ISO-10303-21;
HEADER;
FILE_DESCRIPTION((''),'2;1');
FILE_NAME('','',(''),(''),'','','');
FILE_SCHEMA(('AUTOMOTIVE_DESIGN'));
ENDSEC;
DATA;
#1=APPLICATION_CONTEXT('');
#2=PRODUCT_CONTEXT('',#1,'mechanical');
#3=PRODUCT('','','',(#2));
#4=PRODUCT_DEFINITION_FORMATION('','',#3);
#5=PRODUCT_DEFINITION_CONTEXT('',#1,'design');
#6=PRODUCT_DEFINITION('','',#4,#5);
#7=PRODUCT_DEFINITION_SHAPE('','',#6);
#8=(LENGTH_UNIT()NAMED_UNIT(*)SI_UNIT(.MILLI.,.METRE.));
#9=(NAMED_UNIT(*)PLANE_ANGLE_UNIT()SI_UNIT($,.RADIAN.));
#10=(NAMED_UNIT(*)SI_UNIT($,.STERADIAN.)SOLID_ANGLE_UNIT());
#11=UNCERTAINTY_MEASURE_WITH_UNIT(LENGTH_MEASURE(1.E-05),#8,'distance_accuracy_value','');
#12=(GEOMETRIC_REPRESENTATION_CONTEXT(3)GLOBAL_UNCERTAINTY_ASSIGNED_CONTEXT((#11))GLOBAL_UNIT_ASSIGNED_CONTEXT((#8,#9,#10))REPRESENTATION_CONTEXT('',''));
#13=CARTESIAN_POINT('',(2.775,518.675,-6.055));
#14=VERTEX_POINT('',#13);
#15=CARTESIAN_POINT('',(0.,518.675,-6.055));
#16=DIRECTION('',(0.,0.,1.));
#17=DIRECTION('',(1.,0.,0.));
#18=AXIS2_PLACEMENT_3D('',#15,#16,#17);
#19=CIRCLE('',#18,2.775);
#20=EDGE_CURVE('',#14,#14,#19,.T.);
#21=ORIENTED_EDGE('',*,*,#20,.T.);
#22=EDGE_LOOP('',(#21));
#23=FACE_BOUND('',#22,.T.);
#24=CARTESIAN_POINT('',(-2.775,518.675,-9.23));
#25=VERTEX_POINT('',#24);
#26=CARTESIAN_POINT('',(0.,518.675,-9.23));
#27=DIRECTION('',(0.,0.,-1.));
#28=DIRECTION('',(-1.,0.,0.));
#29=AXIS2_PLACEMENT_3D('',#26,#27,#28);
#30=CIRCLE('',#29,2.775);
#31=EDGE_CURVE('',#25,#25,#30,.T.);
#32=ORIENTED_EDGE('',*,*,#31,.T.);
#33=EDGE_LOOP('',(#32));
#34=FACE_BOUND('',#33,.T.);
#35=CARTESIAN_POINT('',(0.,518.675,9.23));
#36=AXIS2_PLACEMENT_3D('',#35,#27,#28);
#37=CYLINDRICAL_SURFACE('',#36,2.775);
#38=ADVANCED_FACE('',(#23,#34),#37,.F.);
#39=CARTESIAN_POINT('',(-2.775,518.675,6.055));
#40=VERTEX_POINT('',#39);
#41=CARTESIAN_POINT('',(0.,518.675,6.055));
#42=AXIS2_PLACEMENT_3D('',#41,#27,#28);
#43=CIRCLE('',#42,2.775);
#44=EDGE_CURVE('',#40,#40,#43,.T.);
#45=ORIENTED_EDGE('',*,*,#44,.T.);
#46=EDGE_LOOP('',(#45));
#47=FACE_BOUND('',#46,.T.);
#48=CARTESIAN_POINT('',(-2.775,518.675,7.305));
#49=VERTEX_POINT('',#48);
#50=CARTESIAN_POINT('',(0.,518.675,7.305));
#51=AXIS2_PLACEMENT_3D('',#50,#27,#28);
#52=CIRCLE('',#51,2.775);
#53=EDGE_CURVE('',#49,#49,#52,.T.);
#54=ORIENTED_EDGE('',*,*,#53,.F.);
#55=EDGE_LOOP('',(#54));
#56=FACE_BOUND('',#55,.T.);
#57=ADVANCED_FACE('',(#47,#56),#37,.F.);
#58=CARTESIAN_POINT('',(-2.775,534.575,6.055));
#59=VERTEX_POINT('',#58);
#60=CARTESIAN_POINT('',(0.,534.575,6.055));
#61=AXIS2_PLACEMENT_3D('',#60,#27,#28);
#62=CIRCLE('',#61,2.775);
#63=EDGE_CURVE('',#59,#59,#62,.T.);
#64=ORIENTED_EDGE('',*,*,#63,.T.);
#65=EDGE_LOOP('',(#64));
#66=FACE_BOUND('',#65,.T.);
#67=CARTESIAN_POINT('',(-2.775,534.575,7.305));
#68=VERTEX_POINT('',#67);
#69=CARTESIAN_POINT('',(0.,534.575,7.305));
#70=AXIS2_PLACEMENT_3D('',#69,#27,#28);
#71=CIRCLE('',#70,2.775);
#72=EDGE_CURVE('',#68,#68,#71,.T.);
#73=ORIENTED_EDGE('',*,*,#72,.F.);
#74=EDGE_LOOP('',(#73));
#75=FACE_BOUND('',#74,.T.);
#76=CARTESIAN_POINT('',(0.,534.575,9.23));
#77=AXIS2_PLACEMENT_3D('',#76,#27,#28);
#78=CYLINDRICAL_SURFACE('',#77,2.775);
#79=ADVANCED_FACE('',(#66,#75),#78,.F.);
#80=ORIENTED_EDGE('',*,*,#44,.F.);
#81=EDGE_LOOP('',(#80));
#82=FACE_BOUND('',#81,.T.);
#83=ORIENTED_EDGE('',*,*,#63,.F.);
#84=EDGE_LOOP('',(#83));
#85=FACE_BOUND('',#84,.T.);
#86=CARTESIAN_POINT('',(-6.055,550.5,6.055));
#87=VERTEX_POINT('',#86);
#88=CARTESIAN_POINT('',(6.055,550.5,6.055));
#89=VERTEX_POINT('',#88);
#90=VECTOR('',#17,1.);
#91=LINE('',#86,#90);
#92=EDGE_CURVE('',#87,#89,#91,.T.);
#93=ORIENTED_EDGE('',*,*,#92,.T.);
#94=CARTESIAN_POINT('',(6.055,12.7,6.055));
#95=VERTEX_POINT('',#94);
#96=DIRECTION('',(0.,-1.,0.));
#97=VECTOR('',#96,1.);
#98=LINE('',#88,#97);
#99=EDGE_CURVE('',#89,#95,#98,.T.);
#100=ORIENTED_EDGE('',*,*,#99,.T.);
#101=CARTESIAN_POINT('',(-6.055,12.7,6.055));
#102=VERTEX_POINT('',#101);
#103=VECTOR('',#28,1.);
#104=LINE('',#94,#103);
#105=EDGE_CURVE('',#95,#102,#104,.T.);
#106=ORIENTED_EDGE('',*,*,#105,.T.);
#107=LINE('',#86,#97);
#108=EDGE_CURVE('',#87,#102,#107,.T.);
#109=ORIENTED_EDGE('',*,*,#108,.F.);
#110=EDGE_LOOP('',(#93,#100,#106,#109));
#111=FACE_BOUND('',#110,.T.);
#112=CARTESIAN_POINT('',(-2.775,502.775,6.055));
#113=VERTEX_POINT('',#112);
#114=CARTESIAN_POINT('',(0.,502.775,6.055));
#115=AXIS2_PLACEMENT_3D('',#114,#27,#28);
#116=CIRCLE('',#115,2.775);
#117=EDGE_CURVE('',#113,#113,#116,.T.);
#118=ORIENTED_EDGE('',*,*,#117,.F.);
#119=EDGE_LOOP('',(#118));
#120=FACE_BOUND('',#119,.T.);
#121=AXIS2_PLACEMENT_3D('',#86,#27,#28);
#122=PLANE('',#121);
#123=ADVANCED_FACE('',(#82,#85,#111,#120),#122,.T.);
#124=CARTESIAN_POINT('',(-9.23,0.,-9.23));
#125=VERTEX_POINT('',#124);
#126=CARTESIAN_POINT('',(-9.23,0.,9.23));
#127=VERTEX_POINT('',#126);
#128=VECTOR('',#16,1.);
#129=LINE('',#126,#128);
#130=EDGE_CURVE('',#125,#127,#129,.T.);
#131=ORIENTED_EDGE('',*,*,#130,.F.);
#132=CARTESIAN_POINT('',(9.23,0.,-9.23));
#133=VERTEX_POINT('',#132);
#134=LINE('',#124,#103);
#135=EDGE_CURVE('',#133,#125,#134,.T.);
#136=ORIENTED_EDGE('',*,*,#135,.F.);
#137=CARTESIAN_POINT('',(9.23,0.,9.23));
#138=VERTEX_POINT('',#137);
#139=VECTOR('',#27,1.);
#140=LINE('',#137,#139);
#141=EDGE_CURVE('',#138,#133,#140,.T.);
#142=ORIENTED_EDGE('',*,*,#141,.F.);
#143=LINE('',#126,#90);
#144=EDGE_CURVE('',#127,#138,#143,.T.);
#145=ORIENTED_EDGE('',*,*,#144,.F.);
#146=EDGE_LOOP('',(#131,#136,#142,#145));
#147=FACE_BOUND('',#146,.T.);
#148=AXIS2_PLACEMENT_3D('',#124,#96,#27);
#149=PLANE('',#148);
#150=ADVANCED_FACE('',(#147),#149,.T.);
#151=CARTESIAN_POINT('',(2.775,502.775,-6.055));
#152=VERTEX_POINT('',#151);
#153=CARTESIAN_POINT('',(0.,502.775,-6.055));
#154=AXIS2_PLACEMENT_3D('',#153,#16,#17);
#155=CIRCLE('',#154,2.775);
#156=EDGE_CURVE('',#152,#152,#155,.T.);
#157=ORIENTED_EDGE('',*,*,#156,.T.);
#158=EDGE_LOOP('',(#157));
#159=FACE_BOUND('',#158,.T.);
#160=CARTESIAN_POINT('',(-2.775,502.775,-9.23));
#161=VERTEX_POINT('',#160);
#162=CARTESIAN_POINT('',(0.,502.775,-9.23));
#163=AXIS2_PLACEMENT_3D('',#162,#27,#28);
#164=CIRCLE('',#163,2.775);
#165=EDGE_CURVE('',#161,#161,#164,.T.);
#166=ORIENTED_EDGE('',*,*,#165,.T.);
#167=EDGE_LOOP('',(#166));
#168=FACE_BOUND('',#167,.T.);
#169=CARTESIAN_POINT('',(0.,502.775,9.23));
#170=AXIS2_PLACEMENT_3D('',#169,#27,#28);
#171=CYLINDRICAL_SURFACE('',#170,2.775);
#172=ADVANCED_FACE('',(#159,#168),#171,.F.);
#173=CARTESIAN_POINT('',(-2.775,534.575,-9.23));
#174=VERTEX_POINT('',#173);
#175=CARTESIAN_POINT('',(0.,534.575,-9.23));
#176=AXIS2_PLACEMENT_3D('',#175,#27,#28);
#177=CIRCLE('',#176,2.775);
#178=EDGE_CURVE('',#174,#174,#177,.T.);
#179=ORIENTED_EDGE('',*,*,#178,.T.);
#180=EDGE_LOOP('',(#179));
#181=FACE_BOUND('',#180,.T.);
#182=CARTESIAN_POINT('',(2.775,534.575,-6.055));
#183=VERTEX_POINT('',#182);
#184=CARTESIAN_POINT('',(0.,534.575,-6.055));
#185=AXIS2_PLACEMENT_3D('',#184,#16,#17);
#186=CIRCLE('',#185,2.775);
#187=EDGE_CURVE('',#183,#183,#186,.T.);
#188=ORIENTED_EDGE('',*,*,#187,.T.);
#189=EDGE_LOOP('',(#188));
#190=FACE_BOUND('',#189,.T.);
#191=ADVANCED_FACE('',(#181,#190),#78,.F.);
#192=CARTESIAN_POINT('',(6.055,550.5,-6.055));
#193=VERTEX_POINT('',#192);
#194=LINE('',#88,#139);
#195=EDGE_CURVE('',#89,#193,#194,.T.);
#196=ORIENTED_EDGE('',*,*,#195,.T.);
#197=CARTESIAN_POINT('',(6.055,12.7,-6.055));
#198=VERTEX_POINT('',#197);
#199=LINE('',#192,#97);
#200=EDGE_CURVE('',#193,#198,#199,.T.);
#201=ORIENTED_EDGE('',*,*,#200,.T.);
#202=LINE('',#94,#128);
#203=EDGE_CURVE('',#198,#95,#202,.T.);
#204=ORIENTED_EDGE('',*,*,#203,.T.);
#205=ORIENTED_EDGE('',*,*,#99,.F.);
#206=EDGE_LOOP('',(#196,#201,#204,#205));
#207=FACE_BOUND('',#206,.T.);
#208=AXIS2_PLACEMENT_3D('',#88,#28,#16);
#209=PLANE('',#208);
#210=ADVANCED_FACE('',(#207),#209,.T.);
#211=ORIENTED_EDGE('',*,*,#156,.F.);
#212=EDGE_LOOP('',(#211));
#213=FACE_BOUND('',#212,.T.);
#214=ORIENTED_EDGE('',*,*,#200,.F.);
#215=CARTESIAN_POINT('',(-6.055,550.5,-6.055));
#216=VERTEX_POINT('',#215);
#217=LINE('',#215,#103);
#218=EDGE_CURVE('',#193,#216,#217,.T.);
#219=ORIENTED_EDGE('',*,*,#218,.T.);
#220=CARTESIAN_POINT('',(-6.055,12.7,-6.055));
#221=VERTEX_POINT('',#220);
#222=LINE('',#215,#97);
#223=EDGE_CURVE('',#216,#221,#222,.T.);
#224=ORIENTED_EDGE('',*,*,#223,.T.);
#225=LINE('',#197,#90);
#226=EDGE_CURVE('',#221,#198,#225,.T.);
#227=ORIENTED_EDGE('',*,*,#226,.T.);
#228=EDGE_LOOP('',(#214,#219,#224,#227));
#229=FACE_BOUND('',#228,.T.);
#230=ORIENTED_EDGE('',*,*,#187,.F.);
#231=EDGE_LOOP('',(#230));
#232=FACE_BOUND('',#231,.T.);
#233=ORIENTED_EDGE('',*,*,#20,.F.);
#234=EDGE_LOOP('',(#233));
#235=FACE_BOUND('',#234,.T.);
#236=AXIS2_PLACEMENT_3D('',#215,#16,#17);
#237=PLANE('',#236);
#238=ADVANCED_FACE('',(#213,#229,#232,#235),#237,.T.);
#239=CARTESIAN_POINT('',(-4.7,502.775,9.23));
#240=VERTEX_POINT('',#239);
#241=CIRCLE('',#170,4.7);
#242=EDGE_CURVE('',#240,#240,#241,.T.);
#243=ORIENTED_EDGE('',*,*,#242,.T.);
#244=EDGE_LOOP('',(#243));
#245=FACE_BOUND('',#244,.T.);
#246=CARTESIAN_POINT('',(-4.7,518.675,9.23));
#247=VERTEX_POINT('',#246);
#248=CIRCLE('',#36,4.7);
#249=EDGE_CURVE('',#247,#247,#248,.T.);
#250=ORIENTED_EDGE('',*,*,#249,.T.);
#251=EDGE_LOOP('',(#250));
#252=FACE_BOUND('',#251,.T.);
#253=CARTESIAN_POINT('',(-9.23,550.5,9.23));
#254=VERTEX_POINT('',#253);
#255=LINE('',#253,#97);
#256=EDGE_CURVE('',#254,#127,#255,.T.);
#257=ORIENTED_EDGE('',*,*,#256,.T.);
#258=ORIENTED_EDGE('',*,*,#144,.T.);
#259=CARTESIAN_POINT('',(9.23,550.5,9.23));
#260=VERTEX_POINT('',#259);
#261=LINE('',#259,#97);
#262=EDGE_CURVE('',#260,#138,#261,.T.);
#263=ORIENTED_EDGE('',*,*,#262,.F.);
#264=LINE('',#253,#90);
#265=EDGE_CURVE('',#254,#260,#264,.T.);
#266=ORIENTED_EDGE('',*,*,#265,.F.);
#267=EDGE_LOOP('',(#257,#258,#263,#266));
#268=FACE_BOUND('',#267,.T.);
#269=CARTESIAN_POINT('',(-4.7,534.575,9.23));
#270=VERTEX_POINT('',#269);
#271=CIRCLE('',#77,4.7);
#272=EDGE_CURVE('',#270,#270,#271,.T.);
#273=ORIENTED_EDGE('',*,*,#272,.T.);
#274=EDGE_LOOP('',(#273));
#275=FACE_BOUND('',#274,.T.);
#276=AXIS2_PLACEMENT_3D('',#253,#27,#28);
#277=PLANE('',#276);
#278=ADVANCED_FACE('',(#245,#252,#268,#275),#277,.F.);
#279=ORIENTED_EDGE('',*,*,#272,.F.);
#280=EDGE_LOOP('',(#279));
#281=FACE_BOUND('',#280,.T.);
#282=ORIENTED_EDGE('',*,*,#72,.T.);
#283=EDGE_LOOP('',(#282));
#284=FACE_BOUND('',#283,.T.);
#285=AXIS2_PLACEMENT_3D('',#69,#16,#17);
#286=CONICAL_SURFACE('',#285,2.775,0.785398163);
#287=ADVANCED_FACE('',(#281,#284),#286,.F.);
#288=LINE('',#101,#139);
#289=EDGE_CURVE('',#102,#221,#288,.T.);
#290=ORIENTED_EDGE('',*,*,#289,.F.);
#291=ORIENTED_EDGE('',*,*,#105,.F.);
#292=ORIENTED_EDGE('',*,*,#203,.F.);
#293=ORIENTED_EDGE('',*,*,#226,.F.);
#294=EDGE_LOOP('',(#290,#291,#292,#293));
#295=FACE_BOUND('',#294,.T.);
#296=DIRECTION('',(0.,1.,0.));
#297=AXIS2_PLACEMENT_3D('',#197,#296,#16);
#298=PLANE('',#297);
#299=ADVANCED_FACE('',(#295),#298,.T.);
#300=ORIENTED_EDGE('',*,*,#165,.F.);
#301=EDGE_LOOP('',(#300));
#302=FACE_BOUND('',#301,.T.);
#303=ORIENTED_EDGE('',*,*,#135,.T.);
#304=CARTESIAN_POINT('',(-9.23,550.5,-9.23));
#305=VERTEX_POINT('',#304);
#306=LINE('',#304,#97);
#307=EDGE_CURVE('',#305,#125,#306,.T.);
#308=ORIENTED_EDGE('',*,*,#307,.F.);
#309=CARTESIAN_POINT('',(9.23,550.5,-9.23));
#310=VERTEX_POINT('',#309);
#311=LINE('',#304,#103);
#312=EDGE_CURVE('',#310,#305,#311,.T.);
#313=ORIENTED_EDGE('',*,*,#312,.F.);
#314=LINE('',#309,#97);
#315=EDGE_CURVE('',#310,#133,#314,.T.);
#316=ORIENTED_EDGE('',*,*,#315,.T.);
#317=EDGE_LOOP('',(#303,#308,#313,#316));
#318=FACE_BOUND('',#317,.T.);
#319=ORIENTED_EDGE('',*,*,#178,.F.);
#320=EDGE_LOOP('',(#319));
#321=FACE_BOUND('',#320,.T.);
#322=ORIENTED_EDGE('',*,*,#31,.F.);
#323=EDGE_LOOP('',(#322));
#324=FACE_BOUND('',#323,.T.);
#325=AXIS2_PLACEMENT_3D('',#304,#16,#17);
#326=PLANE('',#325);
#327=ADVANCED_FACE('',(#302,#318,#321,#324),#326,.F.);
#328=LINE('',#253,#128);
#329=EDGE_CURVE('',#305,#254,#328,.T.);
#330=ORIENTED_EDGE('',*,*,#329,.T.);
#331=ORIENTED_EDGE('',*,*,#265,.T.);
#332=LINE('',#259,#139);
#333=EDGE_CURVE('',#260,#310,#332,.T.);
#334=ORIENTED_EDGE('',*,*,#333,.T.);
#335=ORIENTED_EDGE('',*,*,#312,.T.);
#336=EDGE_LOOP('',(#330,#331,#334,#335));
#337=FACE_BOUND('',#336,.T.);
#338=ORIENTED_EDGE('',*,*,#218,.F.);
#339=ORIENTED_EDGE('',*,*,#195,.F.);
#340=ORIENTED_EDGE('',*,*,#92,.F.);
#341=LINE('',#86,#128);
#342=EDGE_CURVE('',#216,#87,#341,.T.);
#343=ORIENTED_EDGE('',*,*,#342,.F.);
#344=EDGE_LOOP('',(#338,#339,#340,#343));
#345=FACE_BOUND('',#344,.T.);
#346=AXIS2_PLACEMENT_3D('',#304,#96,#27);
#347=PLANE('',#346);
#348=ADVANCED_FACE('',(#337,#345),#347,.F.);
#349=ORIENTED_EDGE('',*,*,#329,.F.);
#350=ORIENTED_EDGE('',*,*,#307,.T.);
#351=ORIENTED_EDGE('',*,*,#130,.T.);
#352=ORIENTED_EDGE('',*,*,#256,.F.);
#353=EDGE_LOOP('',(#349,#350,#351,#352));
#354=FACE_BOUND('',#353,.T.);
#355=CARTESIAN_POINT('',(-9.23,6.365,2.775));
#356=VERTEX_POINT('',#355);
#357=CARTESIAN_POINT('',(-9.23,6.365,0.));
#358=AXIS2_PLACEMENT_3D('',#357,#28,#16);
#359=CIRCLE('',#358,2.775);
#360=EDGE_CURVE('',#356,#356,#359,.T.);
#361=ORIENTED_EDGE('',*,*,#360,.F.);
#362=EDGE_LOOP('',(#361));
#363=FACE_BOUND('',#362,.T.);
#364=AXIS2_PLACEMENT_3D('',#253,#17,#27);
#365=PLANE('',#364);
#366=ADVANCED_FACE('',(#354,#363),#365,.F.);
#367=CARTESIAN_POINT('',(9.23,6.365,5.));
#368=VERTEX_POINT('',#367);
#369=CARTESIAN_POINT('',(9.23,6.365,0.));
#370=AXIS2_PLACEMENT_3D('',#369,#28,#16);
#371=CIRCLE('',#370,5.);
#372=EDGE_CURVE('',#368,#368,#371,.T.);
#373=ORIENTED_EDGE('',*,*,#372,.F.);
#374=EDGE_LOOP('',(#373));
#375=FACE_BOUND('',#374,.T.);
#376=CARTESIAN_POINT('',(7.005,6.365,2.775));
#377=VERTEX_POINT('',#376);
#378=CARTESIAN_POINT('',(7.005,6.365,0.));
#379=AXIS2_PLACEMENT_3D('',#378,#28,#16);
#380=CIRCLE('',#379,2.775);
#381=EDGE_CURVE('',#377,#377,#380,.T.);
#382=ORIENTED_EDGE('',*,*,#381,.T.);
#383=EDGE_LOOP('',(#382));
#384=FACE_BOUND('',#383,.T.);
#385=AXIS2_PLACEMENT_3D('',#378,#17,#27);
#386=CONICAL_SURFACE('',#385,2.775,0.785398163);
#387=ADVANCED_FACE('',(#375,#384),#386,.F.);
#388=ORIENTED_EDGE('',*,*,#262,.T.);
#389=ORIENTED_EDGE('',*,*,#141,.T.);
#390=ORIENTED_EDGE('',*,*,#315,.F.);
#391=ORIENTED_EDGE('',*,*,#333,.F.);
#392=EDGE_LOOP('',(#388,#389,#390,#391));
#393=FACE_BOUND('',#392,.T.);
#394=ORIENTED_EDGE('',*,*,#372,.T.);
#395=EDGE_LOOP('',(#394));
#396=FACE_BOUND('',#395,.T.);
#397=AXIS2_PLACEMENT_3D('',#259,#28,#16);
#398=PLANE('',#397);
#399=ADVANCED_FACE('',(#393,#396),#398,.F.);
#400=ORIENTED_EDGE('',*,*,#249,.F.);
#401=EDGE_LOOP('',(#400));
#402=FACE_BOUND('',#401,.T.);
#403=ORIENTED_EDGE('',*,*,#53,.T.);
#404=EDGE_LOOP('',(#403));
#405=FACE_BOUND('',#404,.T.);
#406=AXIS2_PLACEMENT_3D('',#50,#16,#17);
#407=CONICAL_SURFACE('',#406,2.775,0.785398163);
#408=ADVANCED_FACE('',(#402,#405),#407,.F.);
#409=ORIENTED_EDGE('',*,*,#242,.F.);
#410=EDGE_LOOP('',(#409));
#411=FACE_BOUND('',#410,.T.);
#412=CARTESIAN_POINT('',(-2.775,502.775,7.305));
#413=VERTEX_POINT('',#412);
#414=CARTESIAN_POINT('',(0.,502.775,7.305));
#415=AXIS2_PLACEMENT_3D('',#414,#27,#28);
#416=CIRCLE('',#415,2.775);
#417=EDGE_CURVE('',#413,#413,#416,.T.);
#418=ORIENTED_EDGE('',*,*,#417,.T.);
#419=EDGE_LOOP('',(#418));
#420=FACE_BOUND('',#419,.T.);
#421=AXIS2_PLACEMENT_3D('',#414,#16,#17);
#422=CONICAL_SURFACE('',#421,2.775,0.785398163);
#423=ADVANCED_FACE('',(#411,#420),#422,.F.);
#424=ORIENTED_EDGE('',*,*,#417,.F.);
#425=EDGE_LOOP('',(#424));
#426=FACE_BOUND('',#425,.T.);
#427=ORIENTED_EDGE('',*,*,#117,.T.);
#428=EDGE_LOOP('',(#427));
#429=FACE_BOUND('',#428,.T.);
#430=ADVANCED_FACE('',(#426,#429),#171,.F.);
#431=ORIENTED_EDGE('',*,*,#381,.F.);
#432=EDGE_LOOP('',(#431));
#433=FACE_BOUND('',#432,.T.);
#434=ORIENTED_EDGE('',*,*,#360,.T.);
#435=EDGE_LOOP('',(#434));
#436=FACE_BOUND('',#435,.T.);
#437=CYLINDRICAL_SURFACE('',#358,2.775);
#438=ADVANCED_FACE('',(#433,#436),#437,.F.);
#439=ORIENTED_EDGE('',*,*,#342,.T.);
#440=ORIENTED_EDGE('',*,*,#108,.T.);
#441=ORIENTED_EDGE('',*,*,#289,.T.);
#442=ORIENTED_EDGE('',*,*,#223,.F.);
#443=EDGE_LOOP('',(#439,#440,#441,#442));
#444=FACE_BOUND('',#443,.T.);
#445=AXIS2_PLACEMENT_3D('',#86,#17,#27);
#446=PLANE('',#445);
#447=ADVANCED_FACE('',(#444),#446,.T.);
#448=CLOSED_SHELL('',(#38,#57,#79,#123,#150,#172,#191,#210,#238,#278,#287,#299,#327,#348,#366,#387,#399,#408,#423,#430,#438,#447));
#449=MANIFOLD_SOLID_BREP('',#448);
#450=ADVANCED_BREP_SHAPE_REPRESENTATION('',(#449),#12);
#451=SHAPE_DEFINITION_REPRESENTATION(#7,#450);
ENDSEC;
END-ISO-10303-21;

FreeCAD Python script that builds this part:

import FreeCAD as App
import Part
import Sketcher

V = App.Vector
Q = App.Units.Quantity


def add_polygon(sketch, points):
    """Adds a closed chain of lines whose ends are joined by coincident constraints."""
    first, n = sketch.GeometryCount, len(points)
    for a, b in zip(points, points[1:] + points[:1]):
        sketch.addGeometry(Part.LineSegment(App.Vector(*a, 0), App.Vector(*b, 0)), False)
    for i in range(n):
        sketch.addConstraint(Sketcher.Constraint("Coincident", first + i, 2, first + (i + 1) % n, 1))

doc = App.newDocument("Part")
body = doc.addObject("PartDesign::Body", "Body")

sketch1 = doc.addObject("Sketcher::SketchObject", "Sketch")
body.addObject(sketch1)
sketch1.AttachmentSupport = (doc.XZ_Plane, [""])
sketch1.MapMode = "FlatFace"
add_polygon(sketch1, [(-9, -9), (-9, 9), (9, 9), (9, -9)])
add_polygon(sketch1, [(6, 6), (-6, 6), (-6, -6), (6, -6)])
sketch1.addConstraint(Sketcher.Constraint("Vertical", 0))
sketch1.addConstraint(Sketcher.Constraint("Horizontal", 1))
sketch1.addConstraint(Sketcher.Constraint("Vertical", 2))
sketch1.addConstraint(Sketcher.Constraint("Horizontal", 3))
sketch1.addConstraint(Sketcher.Constraint("Horizontal", 4))
sketch1.addConstraint(Sketcher.Constraint("Vertical", 5))
sketch1.addConstraint(Sketcher.Constraint("Horizontal", 6))
sketch1.addConstraint(Sketcher.Constraint("Vertical", 7))
sketch1.addConstraint(Sketcher.Constraint("Symmetric", 0, 2, 2, 2, -1, 1))
sketch1.addConstraint(Sketcher.Constraint("Symmetric", 4, 2, 6, 2, -1, 1))
sketch1.addConstraint(Sketcher.Constraint("Equal", 3, 0))
sketch1.addConstraint(Sketcher.Constraint("Equal", 6, 5))
sketch1.addConstraint(Sketcher.Constraint("DistanceX", 1, 1, 1, 2, Q("18.46 mm")))
sketch1.addConstraint(Sketcher.Constraint("DistanceX", 4, 2, 4, 1, Q("12.11 mm")))
pad1 = doc.addObject("PartDesign::Pad", "Pad")
body.addObject(pad1)
pad1.Profile = sketch1
pad1.Length = 550.5
pad1.Reversed = True

sketch2 = doc.addObject("Sketcher::SketchObject", "Sketch001")
body.addObject(sketch2)
sketch2.AttachmentSupport = (doc.XZ_Plane, [""])
sketch2.MapMode = "FlatFace"
add_polygon(sketch2, [(-6, 6), (-6, -6), (6, -6), (6, 6)])
sketch2.addConstraint(Sketcher.Constraint("Vertical", 0))
sketch2.addConstraint(Sketcher.Constraint("Horizontal", 1))
sketch2.addConstraint(Sketcher.Constraint("Vertical", 2))
sketch2.addConstraint(Sketcher.Constraint("Horizontal", 3))
sketch2.addConstraint(Sketcher.Constraint("Symmetric", 0, 2, 2, 2, -1, 1))
sketch2.addConstraint(Sketcher.Constraint("Equal", 3, 0))
sketch2.addConstraint(Sketcher.Constraint("DistanceX", 1, 1, 1, 2, Q("12.11 mm")))
pad2 = doc.addObject("PartDesign::Pad", "Pad001")
body.addObject(pad2)
pad2.Profile = sketch2
pad2.Length = 12.7
pad2.Reversed = True

sketch3 = doc.addObject("Sketcher::SketchObject", "Sketch002")
body.addObject(sketch3)
sketch3.AttachmentSupport = (doc.XY_Plane, [""])
sketch3.MapMode = "FlatFace"
add_polygon(sketch3, [(9.2, 6.4), (-9.2, 6.4), (-9.2, 3.6), (7, 3.6), (9.2, 1.4)])
sketch3.addGeometry(Part.LineSegment(V(-9.2, 6.4, 0), V(9.2, 6.4, 0)), True)
sketch3.addConstraint(Sketcher.Constraint("Horizontal", 0))
sketch3.addConstraint(Sketcher.Constraint("Vertical", 1))
sketch3.addConstraint(Sketcher.Constraint("Horizontal", 2))
sketch3.addConstraint(Sketcher.Constraint("Vertical", 4))
sketch3.addConstraint(Sketcher.Constraint("Horizontal", 5))
sketch3.addConstraint(Sketcher.Constraint("Coincident", 5, 1, 0, 2))
sketch3.addConstraint(Sketcher.Constraint("Vertical", 3, 2, 5, 2))
sketch3.addConstraint(Sketcher.Constraint("DistanceY", 4, 1, 4, 2, Q("5 mm")))
sketch3.addConstraint(Sketcher.Constraint("Angle", 3, Q("-45 deg")))
sketch3.addConstraint(Sketcher.Constraint("DistanceX", 0, 2, 0, 1, Q("18.46 mm")))
sketch3.addConstraint(Sketcher.Constraint("DistanceX", 2, 1, 2, 2, Q("16.235 mm")))
sketch3.addConstraint(Sketcher.Constraint("DistanceX", 0, 2, -1, 1, Q("9.23 mm")))
sketch3.addConstraint(Sketcher.Constraint("DistanceY", -1, 1, 1, 2, Q("3.59 mm")))
groove = doc.addObject("PartDesign::Groove", "Groove")
body.addObject(groove)
groove.Profile = sketch3
groove.ReferenceAxis = (sketch3, ["Axis0"])
groove.Angle = 360

sketch4 = doc.addObject("Sketcher::SketchObject", "Sketch003")
body.addObject(sketch4)
sketch4.AttachmentSupport = (doc.YZ_Plane, [""])
sketch4.MapMode = "FlatFace"
add_polygon(sketch4, [(537.4, 7.3), (539.3, 9.2), (534.6, 9.2), (534.6, -9.2), (537.4, -9.2)])
sketch4.addGeometry(Part.LineSegment(V(534.6, -9.2, 0), V(534.6, 9.2, 0)), True)
sketch4.addConstraint(Sketcher.Constraint("Horizontal", 1))
sketch4.addConstraint(Sketcher.Constraint("Vertical", 2))
sketch4.addConstraint(Sketcher.Constraint("Horizontal", 3))
sketch4.addConstraint(Sketcher.Constraint("Vertical", 4))
sketch4.addConstraint(Sketcher.Constraint("Vertical", 5))
sketch4.addConstraint(Sketcher.Constraint("Coincident", 5, 1, 2, 2))
sketch4.addConstraint(Sketcher.Constraint("Horizontal", 0, 2, 5, 2))
sketch4.addConstraint(Sketcher.Constraint("Angle", 0, Q("45 deg")))
sketch4.addConstraint(Sketcher.Constraint("DistanceX", 1, 2, 1, 1, Q("4.7 mm")))
sketch4.addConstraint(Sketcher.Constraint("DistanceY", 2, 2, 2, 1, Q("18.46 mm")))
sketch4.addConstraint(Sketcher.Constraint("DistanceX", 3, 1, 3, 2, Q("2.775 mm")))
sketch4.addConstraint(Sketcher.Constraint("DistanceY", -1, 1, 0, 2, Q("9.23 mm")))
sketch4.addConstraint(Sketcher.Constraint("DistanceX", -1, 1, 3, 2, Q("537.35 mm")))
groove2 = doc.addObject("PartDesign::Groove", "Groove001")
body.addObject(groove2)
groove2.Profile = sketch4
groove2.ReferenceAxis = (sketch4, ["Axis0"])
groove2.Angle = 360
doc.recompute()

linearpattern = doc.addObject("PartDesign::LinearPattern", "LinearPattern")
body.addObject(linearpattern)
linearpattern.Originals = [groove2]
linearpattern.Direction = (doc.Y_Axis, [""])
linearpattern.Mode = "offset"
linearpattern.Offset = 15.9
linearpattern.Occurrences = 3
linearpattern.Reversed = True
body.Tip = linearpattern

doc.recompute()
